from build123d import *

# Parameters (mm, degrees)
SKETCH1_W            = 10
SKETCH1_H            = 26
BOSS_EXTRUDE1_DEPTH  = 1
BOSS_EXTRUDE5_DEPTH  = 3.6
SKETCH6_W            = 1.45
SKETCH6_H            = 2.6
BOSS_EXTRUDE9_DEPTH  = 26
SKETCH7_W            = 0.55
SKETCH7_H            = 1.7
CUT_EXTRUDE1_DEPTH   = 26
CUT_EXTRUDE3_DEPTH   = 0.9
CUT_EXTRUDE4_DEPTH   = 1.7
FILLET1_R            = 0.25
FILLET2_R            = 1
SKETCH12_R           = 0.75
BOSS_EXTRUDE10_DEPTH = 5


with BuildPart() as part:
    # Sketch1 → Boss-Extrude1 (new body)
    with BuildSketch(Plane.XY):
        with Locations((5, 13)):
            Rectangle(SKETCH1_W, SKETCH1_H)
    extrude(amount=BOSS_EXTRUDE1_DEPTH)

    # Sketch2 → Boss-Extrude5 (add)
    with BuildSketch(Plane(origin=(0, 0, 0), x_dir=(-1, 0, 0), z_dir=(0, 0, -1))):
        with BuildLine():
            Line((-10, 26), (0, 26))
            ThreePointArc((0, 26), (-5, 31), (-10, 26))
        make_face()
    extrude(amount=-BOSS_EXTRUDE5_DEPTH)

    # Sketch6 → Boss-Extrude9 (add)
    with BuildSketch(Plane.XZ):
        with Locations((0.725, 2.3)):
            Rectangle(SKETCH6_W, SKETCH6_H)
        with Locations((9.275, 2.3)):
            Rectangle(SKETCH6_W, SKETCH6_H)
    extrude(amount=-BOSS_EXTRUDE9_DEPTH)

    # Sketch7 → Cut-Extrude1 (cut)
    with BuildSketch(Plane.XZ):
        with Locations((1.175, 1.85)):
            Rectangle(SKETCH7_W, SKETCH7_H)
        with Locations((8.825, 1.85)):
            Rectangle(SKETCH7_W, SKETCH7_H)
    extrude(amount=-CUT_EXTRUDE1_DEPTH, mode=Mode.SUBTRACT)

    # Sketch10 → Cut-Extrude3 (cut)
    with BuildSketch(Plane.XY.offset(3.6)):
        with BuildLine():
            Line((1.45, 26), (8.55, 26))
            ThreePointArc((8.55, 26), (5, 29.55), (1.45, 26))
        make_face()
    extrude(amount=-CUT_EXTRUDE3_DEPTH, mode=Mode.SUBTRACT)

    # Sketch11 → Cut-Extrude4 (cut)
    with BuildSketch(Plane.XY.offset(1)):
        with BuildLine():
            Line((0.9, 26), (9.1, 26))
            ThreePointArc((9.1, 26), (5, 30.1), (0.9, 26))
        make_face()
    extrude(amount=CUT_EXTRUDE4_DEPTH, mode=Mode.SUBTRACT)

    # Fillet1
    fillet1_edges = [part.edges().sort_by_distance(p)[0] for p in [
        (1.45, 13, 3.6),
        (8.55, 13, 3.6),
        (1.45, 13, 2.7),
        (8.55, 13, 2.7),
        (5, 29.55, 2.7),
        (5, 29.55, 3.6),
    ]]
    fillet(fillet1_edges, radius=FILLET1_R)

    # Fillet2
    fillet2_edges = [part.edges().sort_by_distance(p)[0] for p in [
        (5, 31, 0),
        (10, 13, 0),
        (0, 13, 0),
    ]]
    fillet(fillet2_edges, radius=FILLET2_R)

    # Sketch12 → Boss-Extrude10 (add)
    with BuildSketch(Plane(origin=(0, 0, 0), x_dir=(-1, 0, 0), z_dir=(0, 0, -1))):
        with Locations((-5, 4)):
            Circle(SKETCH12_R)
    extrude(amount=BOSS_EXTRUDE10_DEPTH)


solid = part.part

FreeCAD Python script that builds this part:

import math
import FreeCAD as App
import Part
import Sketcher


def edges_at(feature, points):
    """Names of the edges that pass closest to the given points."""
    edges = feature.Shape.Edges
    near = lambda p: min(range(len(edges)), key=lambda i: edges[i].distToShape(Part.Vertex(*p))[0])
    return sorted({f"Edge{near(p) + 1}" for p in points})

doc = App.newDocument("Part")
body = doc.addObject("PartDesign::Body", "Body")

# Sketch on XY plane
sketch1 = body.newObject("Sketcher::SketchObject", "Sketch")
sketch1.AttachmentSupport = (doc.getObject("XY_Plane"), [""])
sketch1.MapMode = "FlatFace"
sketch1.addGeometry([
    Part.LineSegment(App.Vector(0, 26, 0), App.Vector(0, 0, 0)),
    Part.LineSegment(App.Vector(0, 0, 0), App.Vector(10, 0, 0)),
    Part.LineSegment(App.Vector(10, 0, 0), App.Vector(10, 26, 0)),
    Part.LineSegment(App.Vector(10, 26, 0), App.Vector(0, 26, 0)),
], False)
sketch1.addConstraint([
    Sketcher.Constraint("Coincident", 0, 2, 1, 1),
    Sketcher.Constraint("Coincident", 1, 2, 2, 1),
    Sketcher.Constraint("Coincident", 2, 2, 3, 1),
    Sketcher.Constraint("Coincident", 3, 2, 0, 1),
    Sketcher.Constraint("Vertical", 0),
    Sketcher.Constraint("Horizontal", 1),
    Sketcher.Constraint("Vertical", 2),
    Sketcher.Constraint("Horizontal", 3),
    Sketcher.Constraint("Coincident", 0, 2, -1, 1),
    Sketcher.Constraint("DistanceX", 1, 1, 1, 2, 10.0),
    Sketcher.Constraint("DistanceY", 0, 2, 0, 1, 26.0),
])
pad1 = body.newObject("PartDesign::Pad", "Pad")
pad1.Profile = sketch1
pad1.Length = 1

# Sketch on XY plane
sketch2 = body.newObject("Sketcher::SketchObject", "Sketch001")
sketch2.AttachmentSupport = (doc.getObject("XY_Plane"), [""])
sketch2.MapMode = "FlatFace"
sketch2.addGeometry([
    Part.LineSegment(App.Vector(10, 26, 0), App.Vector(0, 26, 0)),
    Part.ArcOfCircle(Part.Circle(App.Vector(5, 26, 0), App.Vector(0, 0, 1), 5), math.radians(0), math.radians(180)),
], False)
sketch2.addConstraint([
    Sketcher.Constraint("Coincident", 0, 1, 1, 1),
    Sketcher.Constraint("Coincident", 1, 2, 0, 2),
    Sketcher.Constraint("Horizontal", 0),
    Sketcher.Constraint("PointOnObject", 1, 2, -2),
    Sketcher.Constraint("Horizontal", 1, 3, 0, 1),
    Sketcher.Constraint("Radius", 1, 5.0),
    Sketcher.Constraint("DistanceY", -1, 1, 1, 3, 26.0),
])
pad2 = body.newObject("PartDesign::Pad", "Pad001")
pad2.Profile = sketch2
pad2.Length = 3.6

# Sketch on XZ plane
sketch3 = body.newObject("Sketcher::SketchObject", "Sketch002")
sketch3.AttachmentSupport = (doc.getObject("XZ_Plane"), [""])
sketch3.MapMode = "FlatFace"
sketch3.addGeometry([
    Part.LineSegment(App.Vector(0, 3.6, 0), App.Vector(0, 1, 0)),  # 0
    Part.LineSegment(App.Vector(0, 1, 0), App.Vector(1.45, 1, 0)),  # 1
    Part.LineSegment(App.Vector(1.45, 1, 0), App.Vector(1.45, 3.6, 0)),  # 2
    Part.LineSegment(App.Vector(1.45, 3.6, 0), App.Vector(0, 3.6, 0)),  # 3
    Part.LineSegment(App.Vector(8.55, 3.6, 0), App.Vector(8.55, 1, 0)),  # 4
    Part.LineSegment(App.Vector(8.55, 1, 0), App.Vector(10, 1, 0)),  # 5
    Part.LineSegment(App.Vector(10, 1, 0), App.Vector(10, 3.6, 0)),  # 6
    Part.LineSegment(App.Vector(10, 3.6, 0), App.Vector(8.55, 3.6, 0)),  # 7
], False)
sketch3.addConstraint([
    Sketcher.Constraint("Coincident", 0, 2, 1, 1),
    Sketcher.Constraint("Coincident", 1, 2, 2, 1),
    Sketcher.Constraint("Coincident", 2, 2, 3, 1),
    Sketcher.Constraint("Coincident", 3, 2, 0, 1),
    Sketcher.Constraint("Coincident", 4, 2, 5, 1),
    Sketcher.Constraint("Coincident", 5, 2, 6, 1),
    Sketcher.Constraint("Coincident", 6, 2, 7, 1),
    Sketcher.Constraint("Coincident", 7, 2, 4, 1),
    Sketcher.Constraint("Vertical", 0),
    Sketcher.Constraint("Horizontal", 1),
    Sketcher.Constraint("Vertical", 2),
    Sketcher.Constraint("Horizontal", 3),
    Sketcher.Constraint("Vertical", 4),
    Sketcher.Constraint("Horizontal", 5),
    Sketcher.Constraint("Vertical", 6),
    Sketcher.Constraint("Horizontal", 7),
    Sketcher.Constraint("PointOnObject", 0, 2, -2),
    Sketcher.Constraint("Horizontal", 1, 2, 4, 2),
    Sketcher.Constraint("Horizontal", 3, 2, 6, 2),
    Sketcher.Constraint("Equal", 3, 5),
    Sketcher.Constraint("DistanceY", 0, 2, 0, 1, 2.6),
    Sketcher.Constraint("DistanceY", -1, 1, 0, 2, 1.0),
    Sketcher.Constraint("DistanceX", -1, 1, 5, 2, 10.0),
    Sketcher.Constraint("DistanceX", 1, 1, 1, 2, 1.45),
])
pad3 = body.newObject("PartDesign::Pad", "Pad002")
pad3.Profile = sketch3
pad3.Length = 26
pad3.Reversed = True

# Sketch on XZ plane
sketch4 = body.newObject("Sketcher::SketchObject", "Sketch003")
sketch4.AttachmentSupport = (doc.getObject("XZ_Plane"), [""])
sketch4.MapMode = "FlatFace"
sketch4.addGeometry([
    Part.LineSegment(App.Vector(0.9, 2.7, 0), App.Vector(0.9, 1, 0)),  # 0
    Part.LineSegment(App.Vector(0.9, 1, 0), App.Vector(1.45, 1, 0)),  # 1
    Part.LineSegment(App.Vector(1.45, 1, 0), App.Vector(1.45, 2.7, 0)),  # 2
    Part.LineSegment(App.Vector(1.45, 2.7, 0), App.Vector(0.9, 2.7, 0)),  # 3
    Part.LineSegment(App.Vector(8.55, 2.7, 0), App.Vector(8.55, 1, 0)),  # 4
    Part.LineSegment(App.Vector(8.55, 1, 0), App.Vector(9.1, 1, 0)),  # 5
    Part.LineSegment(App.Vector(9.1, 1, 0), App.Vector(9.1, 2.7, 0)),  # 6
    Part.LineSegment(App.Vector(9.1, 2.7, 0), App.Vector(8.55, 2.7, 0)),  # 7
], False)
sketch4.addConstraint([
    Sketcher.Constraint("Coincident", 0, 2, 1, 1),
    Sketcher.Constraint("Coincident", 1, 2, 2, 1),
    Sketcher.Constraint("Coincident", 2, 2, 3, 1),
    Sketcher.Constraint("Coincident", 3, 2, 0, 1),
    Sketcher.Constraint("Coincident", 4, 2, 5, 1),
    Sketcher.Constraint("Coincident", 5, 2, 6, 1),
    Sketcher.Constraint("Coincident", 6, 2, 7, 1),
    Sketcher.Constraint("Coincident", 7, 2, 4, 1),
    Sketcher.Constraint("Vertical", 0),
    Sketcher.Constraint("Horizontal", 1),
    Sketcher.Constraint("Vertical", 2),
    Sketcher.Constraint("Horizontal", 3),
    Sketcher.Constraint("Vertical", 4),
    Sketcher.Constraint("Horizontal", 5),
    Sketcher.Constraint("Vertical", 6),
    Sketcher.Constraint("Horizontal", 7),
    Sketcher.Constraint("Horizontal", 1, 2, 4, 2),
    Sketcher.Constraint("Horizontal", 3, 2, 6, 2),
    Sketcher.Constraint("Equal", 3, 5),
    Sketcher.Constraint("DistanceY", 0, 2, 0, 1, 1.7),
    Sketcher.Constraint("DistanceY", -1, 1, 0, 2, 1.0),
    Sketcher.Constraint("DistanceX", 1, 1, 1, 2, 0.55),
    Sketcher.Constraint("DistanceX", -1, 1, 0, 2, 0.9),
    Sketcher.Constraint("DistanceX", -1, 1, 5, 2, 9.1),
])
pocket1 = body.newObject("PartDesign::Pocket", "Pocket")
pocket1.Profile = sketch4
pocket1.Length = 26

# Sketch on XY plane
sketch5 = body.newObject("Sketcher::SketchObject", "Sketch004")
sketch5.AttachmentSupport = (doc.getObject("XY_Plane"), [""])
sketch5.MapMode = "FlatFace"
sketch5.AttachmentOffset = App.Placement(App.Vector(0, 0, 3.6), App.Rotation())
sketch5.addGeometry([
    Part.LineSegment(App.Vector(1.45, 26, 0), App.Vector(8.55, 26, 0)),
    Part.ArcOfCircle(Part.Circle(App.Vector(5, 26, 0), App.Vector(0, 0, 1), 3.55), math.radians(0), math.radians(180)),
], False)
sketch5.addConstraint([
    Sketcher.Constraint("Coincident", 0, 1, 1, 2),
    Sketcher.Constraint("Coincident", 1, 1, 0, 2),
    Sketcher.Constraint("Horizontal", 0),
    Sketcher.Constraint("Horizontal", 1, 3, 0, 1),
    Sketcher.Constraint("Radius", 1, 3.55),
    Sketcher.Constraint("DistanceX", -1, 1, 1, 3, 5.0),
    Sketcher.Constraint("DistanceY", -1, 1, 1, 3, 26.0),
])
pocket2 = body.newObject("PartDesign::Pocket", "Pocket001")
pocket2.Profile = sketch5
pocket2.Length = 0.9

# Sketch on XY plane
sketch6 = body.newObject("Sketcher::SketchObject", "Sketch005")
sketch6.AttachmentSupport = (doc.getObject("XY_Plane"), [""])
sketch6.MapMode = "FlatFace"
sketch6.AttachmentOffset = App.Placement(App.Vector(0, 0, 1), App.Rotation())
sketch6.addGeometry([
    Part.LineSegment(App.Vector(0.9, 26, 0), App.Vector(9.1, 26, 0)),
    Part.ArcOfCircle(Part.Circle(App.Vector(5, 26, 0), App.Vector(0, 0, 1), 4.1), math.radians(0), math.radians(180)),
], False)
sketch6.addConstraint([
    Sketcher.Constraint("Coincident", 0, 1, 1, 2),
    Sketcher.Constraint("Coincident", 1, 1, 0, 2),
    Sketcher.Constraint("Horizontal", 0),
    Sketcher.Constraint("Horizontal", 1, 3, 0, 1),
    Sketcher.Constraint("Radius", 1, 4.1),
    Sketcher.Constraint("DistanceX", -1, 1, 1, 3, 5.0),
    Sketcher.Constraint("DistanceY", -1, 1, 1, 3, 26.0),
])
pocket3 = body.newObject("PartDesign::Pocket", "Pocket002")
pocket3.Profile = sketch6
pocket3.Length = 1.7
pocket3.Reversed = True
doc.recompute()

fillet = body.newObject("PartDesign::Fillet", "Fillet")
fillet.Base = (pocket3, edges_at(pocket3, [
    (1.45, 13, 3.6),
    (8.55, 13, 3.6),
    (1.45, 13, 2.7),
    (8.55, 13, 2.7),
    (5, 29.55, 2.7),
    (5, 29.55, 3.6),
]))
fillet.Radius = 0.25
doc.recompute()

fillet2 = body.newObject("PartDesign::Fillet", "Fillet001")
fillet2.Base = (fillet, edges_at(fillet, [(5, 31, 0), (10, 13, 0), (0, 13, 0)]))
fillet2.Radius = 1

# Sketch on XY plane
sketch7 = body.newObject("Sketcher::SketchObject", "Sketch006")
sketch7.AttachmentSupport = (doc.getObject("XY_Plane"), [""])
sketch7.MapMode = "FlatFace"
sketch7.addGeometry(Part.Circle(App.Vector(5, 4, 0), App.Vector(0, 0, 1), 0.75), False)
sketch7.addConstraint([
    Sketcher.Constraint("Diameter", 0, 1.5),
    Sketcher.Constraint("DistanceX", -1, 1, 0, 3, 5.0),
    Sketcher.Constraint("DistanceY", -1, 1, 0, 3, 4.0),
])
pad4 = body.newObject("PartDesign::Pad", "Pad003")
pad4.Profile = sketch7
pad4.Length = 5
pad4.Reversed = True

doc.recompute()
